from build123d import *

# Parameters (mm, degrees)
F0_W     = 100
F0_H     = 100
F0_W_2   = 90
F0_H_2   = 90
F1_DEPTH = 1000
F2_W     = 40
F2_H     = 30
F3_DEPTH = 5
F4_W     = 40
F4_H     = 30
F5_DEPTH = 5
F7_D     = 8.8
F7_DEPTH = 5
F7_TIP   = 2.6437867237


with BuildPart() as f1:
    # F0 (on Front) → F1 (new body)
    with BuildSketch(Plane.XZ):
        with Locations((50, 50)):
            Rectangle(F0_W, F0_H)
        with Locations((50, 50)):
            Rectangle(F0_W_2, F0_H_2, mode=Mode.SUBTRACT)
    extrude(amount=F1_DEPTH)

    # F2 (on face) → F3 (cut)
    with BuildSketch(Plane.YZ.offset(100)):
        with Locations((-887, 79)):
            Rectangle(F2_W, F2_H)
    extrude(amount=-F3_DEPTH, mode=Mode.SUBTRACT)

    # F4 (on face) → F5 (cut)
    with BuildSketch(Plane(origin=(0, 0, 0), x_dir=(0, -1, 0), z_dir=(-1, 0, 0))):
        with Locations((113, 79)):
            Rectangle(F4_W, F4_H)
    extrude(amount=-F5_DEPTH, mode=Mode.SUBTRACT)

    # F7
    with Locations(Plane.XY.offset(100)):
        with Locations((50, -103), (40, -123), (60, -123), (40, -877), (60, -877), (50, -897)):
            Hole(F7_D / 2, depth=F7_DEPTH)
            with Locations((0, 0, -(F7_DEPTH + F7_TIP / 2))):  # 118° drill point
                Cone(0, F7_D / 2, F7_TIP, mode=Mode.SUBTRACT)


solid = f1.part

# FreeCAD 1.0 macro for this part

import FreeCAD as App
import Part
import Sketcher
Q = App.Units.Quantity

doc = App.newDocument("Part")
body = doc.addObject("PartDesign::Body", "Body")

# Sketch on XZ plane
sketch1 = body.newObject("Sketcher::SketchObject", "Sketch")
sketch1.AttachmentSupport = (doc.getObject("XZ_Plane"), [""])
sketch1.MapMode = "FlatFace"
sketch1.addGeometry([
    Part.LineSegment(App.Vector(0, 100, 0), App.Vector(0, 0, 0)),  # 0
    Part.LineSegment(App.Vector(0, 0, 0), App.Vector(100, 0, 0)),  # 1
    Part.LineSegment(App.Vector(100, 0, 0), App.Vector(100, 100, 0)),  # 2
    Part.LineSegment(App.Vector(100, 100, 0), App.Vector(0, 100, 0)),  # 3
    Part.LineSegment(App.Vector(95, 5, 0), App.Vector(5, 5, 0)),  # 4
    Part.LineSegment(App.Vector(5, 5, 0), App.Vector(5, 95, 0)),  # 5
    Part.LineSegment(App.Vector(5, 95, 0), App.Vector(95, 95, 0)),  # 6
    Part.LineSegment(App.Vector(95, 95, 0), App.Vector(95, 5, 0)),  # 7
], False)
sketch1.addConstraint([
    Sketcher.Constraint("Coincident", 0, 2, 1, 1),
    Sketcher.Constraint("Coincident", 1, 2, 2, 1),
    Sketcher.Constraint("Coincident", 2, 2, 3, 1),
    Sketcher.Constraint("Coincident", 3, 2, 0, 1),
    Sketcher.Constraint("Coincident", 4, 2, 5, 1),
    Sketcher.Constraint("Coincident", 5, 2, 6, 1),
    Sketcher.Constraint("Coincident", 6, 2, 7, 1),
    Sketcher.Constraint("Coincident", 7, 2, 4, 1),
    Sketcher.Constraint("Vertical", 0),
    Sketcher.Constraint("Horizontal", 1),
    Sketcher.Constraint("Vertical", 2),
    Sketcher.Constraint("Horizontal", 3),
    Sketcher.Constraint("Horizontal", 4),
    Sketcher.Constraint("Vertical", 5),
    Sketcher.Constraint("Horizontal", 6),
    Sketcher.Constraint("Vertical", 7),
    Sketcher.Constraint("Coincident", 0, 2, -1, 1),
    Sketcher.Constraint("Equal", 3, 0),
    Sketcher.Constraint("Equal", 6, 5),
    Sketcher.Constraint("DistanceX", 1, 1, 1, 2, Q("100 mm")),
    Sketcher.Constraint("DistanceX", 4, 2, 4, 1, Q("90 mm")),
    Sketcher.Constraint("DistanceX", -1, 1, 4, 2, Q("5 mm")),
    Sketcher.Constraint("DistanceY", -1, 1, 4, 2, Q("5 mm")),
])
pad1 = body.newObject("PartDesign::Pad", "Pad")
pad1.Profile = sketch1
pad1.Length = 1000

# Sketch on YZ plane
sketch2 = body.newObject("Sketcher::SketchObject", "Sketch001")
sketch2.AttachmentSupport = (doc.getObject("YZ_Plane"), [""])
sketch2.MapMode = "FlatFace"
sketch2.AttachmentOffset = App.Placement(App.Vector(0, 0, 100), App.Rotation())
sketch2.addGeometry([
    Part.LineSegment(App.Vector(-907, 94, 0), App.Vector(-907, 64, 0)),
    Part.LineSegment(App.Vector(-907, 64, 0), App.Vector(-867, 64, 0)),
    Part.LineSegment(App.Vector(-867, 64, 0), App.Vector(-867, 94, 0)),
    Part.LineSegment(App.Vector(-867, 94, 0), App.Vector(-907, 94, 0)),
], False)
sketch2.addConstraint([
    Sketcher.Constraint("Coincident", 0, 2, 1, 1),
    Sketcher.Constraint("Coincident", 1, 2, 2, 1),
    Sketcher.Constraint("Coincident", 2, 2, 3, 1),
    Sketcher.Constraint("Coincident", 3, 2, 0, 1),
    Sketcher.Constraint("Vertical", 0),
    Sketcher.Constraint("Horizontal", 1),
    Sketcher.Constraint("Vertical", 2),
    Sketcher.Constraint("Horizontal", 3),
    Sketcher.Constraint("DistanceX", 1, 1, 1, 2, Q("40 mm")),
    Sketcher.Constraint("DistanceY", 0, 2, 0, 1, Q("30 mm")),
    Sketcher.Constraint("DistanceX", 0, 2, -1, 1, Q("907 mm")),
    Sketcher.Constraint("DistanceY", -1, 1, 0, 2, Q("64 mm")),
])
pocket1 = body.newObject("PartDesign::Pocket", "Pocket")
pocket1.Profile = sketch2
pocket1.Length = 5

# Sketch on YZ plane
sketch3 = body.newObject("Sketcher::SketchObject", "Sketch002")
sketch3.AttachmentSupport = (doc.getObject("YZ_Plane"), [""])
sketch3.MapMode = "FlatFace"
sketch3.addGeometry([
    Part.LineSegment(App.Vector(-93, 94, 0), App.Vector(-93, 64, 0)),
    Part.LineSegment(App.Vector(-93, 64, 0), App.Vector(-133, 64, 0)),
    Part.LineSegment(App.Vector(-133, 64, 0), App.Vector(-133, 94, 0)),
    Part.LineSegment(App.Vector(-133, 94, 0), App.Vector(-93, 94, 0)),
], False)
sketch3.addConstraint([
    Sketcher.Constraint("Coincident", 0, 2, 1, 1),
    Sketcher.Constraint("Coincident", 1, 2, 2, 1),
    Sketcher.Constraint("Coincident", 2, 2, 3, 1),
    Sketcher.Constraint("Coincident", 3, 2, 0, 1),
    Sketcher.Constraint("Vertical", 0),
    Sketcher.Constraint("Horizontal", 1),
    Sketcher.Constraint("Vertical", 2),
    Sketcher.Constraint("Horizontal", 3),
    Sketcher.Constraint("DistanceX", 1, 2, 1, 1, Q("40 mm")),
    Sketcher.Constraint("DistanceY", 0, 2, 0, 1, Q("30 mm")),
    Sketcher.Constraint("DistanceX", 0, 2, -1, 1, Q("93 mm")),
    Sketcher.Constraint("DistanceY", -1, 1, 0, 2, Q("64 mm")),
])
pocket2 = body.newObject("PartDesign::Pocket", "Pocket001")
pocket2.Profile = sketch3
pocket2.Length = 5
pocket2.Reversed = True

# Sketch on XY plane
sketch4 = body.newObject("Sketcher::SketchObject", "Sketch003")
sketch4.AttachmentSupport = (doc.getObject("XY_Plane"), [""])
sketch4.MapMode = "FlatFace"
sketch4.AttachmentOffset = App.Placement(App.Vector(0, 0, 100), App.Rotation())
sketch4.addGeometry([
    Part.Circle(App.Vector(50, -103, 0), App.Vector(0, 0, 1), 4.4),  # 0
    Part.Circle(App.Vector(40, -123, 0), App.Vector(0, 0, 1), 4.4),  # 1
    Part.Circle(App.Vector(60, -123, 0), App.Vector(0, 0, 1), 4.4),  # 2
    Part.Circle(App.Vector(40, -877, 0), App.Vector(0, 0, 1), 4.4),  # 3
    Part.Circle(App.Vector(60, -877, 0), App.Vector(0, 0, 1), 4.4),  # 4
    Part.Circle(App.Vector(50, -897, 0), App.Vector(0, 0, 1), 4.4),  # 5
], False)
sketch4.addConstraint([
    Sketcher.Constraint("Equal", 0, 1),
    Sketcher.Constraint("Equal", 1, 2),
    Sketcher.Constraint("Equal", 2, 3),
    Sketcher.Constraint("Equal", 3, 4),
    Sketcher.Constraint("Equal", 4, 5),
    Sketcher.Constraint("Horizontal", 1, 3, 2, 3),
    Sketcher.Constraint("Horizontal", 3, 3, 4, 3),
    Sketcher.Constraint("Vertical", 1, 3, 3, 3),
    Sketcher.Constraint("Vertical", 2, 3, 4, 3),
    Sketcher.Constraint("Vertical", 0, 3, 5, 3),
    Sketcher.Constraint("Diameter", 0, Q("8.8 mm")),
    Sketcher.Constraint("DistanceX", -1, 1, 0, 3, Q("50 mm")),
    Sketcher.Constraint("DistanceY", 0, 3, -1, 1, Q("103 mm")),
    Sketcher.Constraint("DistanceX", -1, 1, 1, 3, Q("40 mm")),
    Sketcher.Constraint("DistanceY", 1, 3, -1, 1, Q("123 mm")),
    Sketcher.Constraint("DistanceX", -1, 1, 2, 3, Q("60 mm")),
    Sketcher.Constraint("DistanceY", 3, 3, -1, 1, Q("877 mm")),
    Sketcher.Constraint("DistanceY", 5, 3, -1, 1, Q("897 mm")),
])
doc.recompute()
hole = body.newObject("PartDesign::Hole", "Hole")
hole.Profile = sketch4
hole.ThreadType = "None"
hole.Diameter = 8.8
hole.DepthType = "Dimension"
hole.Depth = 5
hole.DrillPoint = "Angled"
hole.DrillPointAngle = 118

doc.recompute()
